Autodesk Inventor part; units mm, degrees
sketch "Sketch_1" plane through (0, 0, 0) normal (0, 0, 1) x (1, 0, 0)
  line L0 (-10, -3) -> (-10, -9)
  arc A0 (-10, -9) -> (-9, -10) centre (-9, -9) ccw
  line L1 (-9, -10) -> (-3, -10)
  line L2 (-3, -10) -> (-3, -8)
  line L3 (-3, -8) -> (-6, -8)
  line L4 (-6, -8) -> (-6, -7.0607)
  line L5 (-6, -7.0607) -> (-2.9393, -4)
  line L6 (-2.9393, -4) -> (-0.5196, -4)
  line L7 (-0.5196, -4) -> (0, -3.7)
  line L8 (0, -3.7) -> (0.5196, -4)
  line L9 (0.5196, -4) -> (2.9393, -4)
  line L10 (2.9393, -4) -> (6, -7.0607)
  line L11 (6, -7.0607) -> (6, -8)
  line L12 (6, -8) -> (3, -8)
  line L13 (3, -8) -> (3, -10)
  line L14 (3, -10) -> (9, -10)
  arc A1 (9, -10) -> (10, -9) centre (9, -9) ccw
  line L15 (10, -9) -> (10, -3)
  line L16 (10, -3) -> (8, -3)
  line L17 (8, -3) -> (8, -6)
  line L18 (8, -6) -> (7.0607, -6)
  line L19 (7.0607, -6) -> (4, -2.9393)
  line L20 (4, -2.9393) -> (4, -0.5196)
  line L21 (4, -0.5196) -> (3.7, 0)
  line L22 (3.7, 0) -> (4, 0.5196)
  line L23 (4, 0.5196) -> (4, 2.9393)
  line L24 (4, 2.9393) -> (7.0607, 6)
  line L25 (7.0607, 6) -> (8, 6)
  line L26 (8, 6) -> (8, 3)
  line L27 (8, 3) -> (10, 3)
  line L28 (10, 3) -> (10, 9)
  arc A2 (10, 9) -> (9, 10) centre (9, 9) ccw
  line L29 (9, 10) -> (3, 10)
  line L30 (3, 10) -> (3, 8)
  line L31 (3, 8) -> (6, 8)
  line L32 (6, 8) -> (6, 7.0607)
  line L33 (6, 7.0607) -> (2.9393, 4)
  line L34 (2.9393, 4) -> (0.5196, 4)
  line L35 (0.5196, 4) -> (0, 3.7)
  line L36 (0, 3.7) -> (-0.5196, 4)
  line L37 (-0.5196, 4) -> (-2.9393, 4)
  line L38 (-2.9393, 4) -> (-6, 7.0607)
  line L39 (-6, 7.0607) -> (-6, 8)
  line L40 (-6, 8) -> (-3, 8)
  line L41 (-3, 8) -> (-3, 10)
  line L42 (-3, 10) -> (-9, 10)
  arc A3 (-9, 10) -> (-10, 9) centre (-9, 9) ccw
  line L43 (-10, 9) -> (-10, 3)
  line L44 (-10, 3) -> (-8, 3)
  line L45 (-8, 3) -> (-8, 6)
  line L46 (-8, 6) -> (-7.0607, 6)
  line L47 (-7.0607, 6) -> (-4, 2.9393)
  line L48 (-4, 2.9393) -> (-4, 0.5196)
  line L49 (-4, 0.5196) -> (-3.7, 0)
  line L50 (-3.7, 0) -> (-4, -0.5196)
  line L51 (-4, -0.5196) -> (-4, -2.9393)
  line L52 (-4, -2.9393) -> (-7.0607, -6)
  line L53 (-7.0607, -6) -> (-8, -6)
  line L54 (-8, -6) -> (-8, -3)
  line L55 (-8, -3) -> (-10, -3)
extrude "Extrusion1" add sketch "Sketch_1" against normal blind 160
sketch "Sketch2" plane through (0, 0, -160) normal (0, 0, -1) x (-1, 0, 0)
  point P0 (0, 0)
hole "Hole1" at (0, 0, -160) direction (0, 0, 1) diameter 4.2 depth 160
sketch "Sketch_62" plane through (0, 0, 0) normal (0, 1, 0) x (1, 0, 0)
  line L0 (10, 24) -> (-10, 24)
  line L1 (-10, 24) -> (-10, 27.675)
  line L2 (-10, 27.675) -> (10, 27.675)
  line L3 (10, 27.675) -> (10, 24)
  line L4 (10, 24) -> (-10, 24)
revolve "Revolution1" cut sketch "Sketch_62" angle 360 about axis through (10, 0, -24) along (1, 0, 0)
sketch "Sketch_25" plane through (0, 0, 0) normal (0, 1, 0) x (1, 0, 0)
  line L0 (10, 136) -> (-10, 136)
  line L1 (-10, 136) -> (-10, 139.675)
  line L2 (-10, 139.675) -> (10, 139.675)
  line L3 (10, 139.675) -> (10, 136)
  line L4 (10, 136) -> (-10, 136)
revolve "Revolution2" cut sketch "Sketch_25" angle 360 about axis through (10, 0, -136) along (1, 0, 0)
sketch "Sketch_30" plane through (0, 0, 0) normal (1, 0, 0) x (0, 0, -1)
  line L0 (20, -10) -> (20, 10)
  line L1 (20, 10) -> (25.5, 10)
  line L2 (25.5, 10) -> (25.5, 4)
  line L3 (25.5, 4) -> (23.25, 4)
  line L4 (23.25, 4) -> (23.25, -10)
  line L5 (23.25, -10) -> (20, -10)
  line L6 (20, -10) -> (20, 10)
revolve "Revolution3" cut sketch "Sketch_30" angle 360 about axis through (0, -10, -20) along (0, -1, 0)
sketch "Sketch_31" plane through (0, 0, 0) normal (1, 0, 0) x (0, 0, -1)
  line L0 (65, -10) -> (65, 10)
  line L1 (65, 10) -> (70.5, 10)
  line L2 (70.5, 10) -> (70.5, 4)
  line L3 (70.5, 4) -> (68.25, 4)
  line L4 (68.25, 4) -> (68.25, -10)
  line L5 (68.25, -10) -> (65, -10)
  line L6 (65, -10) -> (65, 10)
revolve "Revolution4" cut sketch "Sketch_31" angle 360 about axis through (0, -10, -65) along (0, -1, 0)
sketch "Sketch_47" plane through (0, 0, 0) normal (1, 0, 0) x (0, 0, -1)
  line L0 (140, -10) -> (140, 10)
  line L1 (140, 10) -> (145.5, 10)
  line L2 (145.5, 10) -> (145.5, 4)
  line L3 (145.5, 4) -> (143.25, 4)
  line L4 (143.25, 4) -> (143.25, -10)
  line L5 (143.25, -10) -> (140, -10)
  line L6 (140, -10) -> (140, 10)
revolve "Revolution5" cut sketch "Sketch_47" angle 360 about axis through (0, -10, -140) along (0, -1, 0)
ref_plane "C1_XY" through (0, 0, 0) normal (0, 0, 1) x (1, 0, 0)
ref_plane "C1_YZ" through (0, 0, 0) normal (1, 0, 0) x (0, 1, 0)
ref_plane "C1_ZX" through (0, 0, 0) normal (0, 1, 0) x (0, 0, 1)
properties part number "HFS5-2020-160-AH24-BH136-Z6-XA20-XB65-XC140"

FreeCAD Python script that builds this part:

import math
import FreeCAD as App
import Part
import Sketcher
from FreeCAD import Vector
Q = App.Units.Quantity

doc = App.newDocument("Part")
body = doc.addObject("PartDesign::Body", "Body")

sketch1 = body.newObject("Sketcher::SketchObject", "Sketch")
sketch1.AttachmentSupport = (doc.getObject("XY_Plane"), [""])
sketch1.MapMode = "FlatFace"
sketch1.addGeometry(Part.LineSegment(Vector(-8, -3, 0), Vector(-10, -3, 0)), False)
sketch1.addGeometry(Part.LineSegment(Vector(-10, -3, 0), Vector(-10, -9, 0)), False)
sketch1.addGeometry(Part.ArcOfCircle(Part.Circle(Vector(-9, -9, 0), Vector(0, 0, 1), 1), math.radians(180), math.radians(270)), False)
sketch1.addGeometry(Part.LineSegment(Vector(-9, -10, 0), Vector(-3, -10, 0)), False)
sketch1.addGeometry(Part.LineSegment(Vector(-3, -10, 0), Vector(-3, -8, 0)), False)
sketch1.addGeometry(Part.LineSegment(Vector(-3, -8, 0), Vector(-6, -8, 0)), False)
sketch1.addGeometry(Part.LineSegment(Vector(-6, -8, 0), Vector(-6, -7.1, 0)), False)
sketch1.addGeometry(Part.LineSegment(Vector(-6, -7.1, 0), Vector(-2.9, -4, 0)), False)
sketch1.addGeometry(Part.LineSegment(Vector(-2.9, -4, 0), Vector(-0.5, -4, 0)), False)
sketch1.addGeometry(Part.LineSegment(Vector(-0.5, -4, 0), Vector(0, -3.7, 0)), False)
sketch1.addGeometry(Part.LineSegment(Vector(0, -3.7, 0), Vector(0.5, -4, 0)), False)
sketch1.addGeometry(Part.LineSegment(Vector(0.5, -4, 0), Vector(2.9, -4, 0)), False)
sketch1.addGeometry(Part.LineSegment(Vector(2.9, -4, 0), Vector(6, -7.1, 0)), False)
sketch1.addGeometry(Part.LineSegment(Vector(6, -7.1, 0), Vector(6, -8, 0)), False)
sketch1.addGeometry(Part.LineSegment(Vector(6, -8, 0), Vector(3, -8, 0)), False)
sketch1.addGeometry(Part.LineSegment(Vector(3, -8, 0), Vector(3, -10, 0)), False)
sketch1.addGeometry(Part.LineSegment(Vector(3, -10, 0), Vector(9, -10, 0)), False)
sketch1.addGeometry(Part.ArcOfCircle(Part.Circle(Vector(9, -9, 0), Vector(0, 0, 1), 1), math.radians(-90), math.radians(0)), False)
sketch1.addGeometry(Part.LineSegment(Vector(10, -9, 0), Vector(10, -3, 0)), False)
sketch1.addGeometry(Part.LineSegment(Vector(10, -3, 0), Vector(8, -3, 0)), False)
sketch1.addGeometry(Part.LineSegment(Vector(8, -3, 0), Vector(8, -6, 0)), False)
sketch1.addGeometry(Part.LineSegment(Vector(8, -6, 0), Vector(7.1, -6, 0)), False)
sketch1.addGeometry(Part.LineSegment(Vector(7.1, -6, 0), Vector(4, -2.9, 0)), False)
sketch1.addGeometry(Part.LineSegment(Vector(4, -2.9, 0), Vector(4, -0.5, 0)), False)
sketch1.addGeometry(Part.LineSegment(Vector(4, -0.5, 0), Vector(3.7, 0, 0)), False)
sketch1.addGeometry(Part.LineSegment(Vector(3.7, 0, 0), Vector(4, 0.5, 0)), False)
sketch1.addGeometry(Part.LineSegment(Vector(4, 0.5, 0), Vector(4, 2.9, 0)), False)
sketch1.addGeometry(Part.LineSegment(Vector(4, 2.9, 0), Vector(7.1, 6, 0)), False)
sketch1.addGeometry(Part.LineSegment(Vector(7.1, 6, 0), Vector(8, 6, 0)), False)
sketch1.addGeometry(Part.LineSegment(Vector(8, 6, 0), Vector(8, 3, 0)), False)
sketch1.addGeometry(Part.LineSegment(Vector(8, 3, 0), Vector(10, 3, 0)), False)
sketch1.addGeometry(Part.LineSegment(Vector(10, 3, 0), Vector(10, 9, 0)), False)
sketch1.addGeometry(Part.ArcOfCircle(Part.Circle(Vector(9, 9, 0), Vector(0, 0, 1), 1), math.radians(0), math.radians(90)), False)
sketch1.addGeometry(Part.LineSegment(Vector(9, 10, 0), Vector(3, 10, 0)), False)
sketch1.addGeometry(Part.LineSegment(Vector(3, 10, 0), Vector(3, 8, 0)), False)
sketch1.addGeometry(Part.LineSegment(Vector(3, 8, 0), Vector(6, 8, 0)), False)
sketch1.addGeometry(Part.LineSegment(Vector(6, 8, 0), Vector(6, 7.1, 0)), False)
sketch1.addGeometry(Part.LineSegment(Vector(6, 7.1, 0), Vector(2.9, 4, 0)), False)
sketch1.addGeometry(Part.LineSegment(Vector(2.9, 4, 0), Vector(0.5, 4, 0)), False)
sketch1.addGeometry(Part.LineSegment(Vector(0.5, 4, 0), Vector(0, 3.7, 0)), False)
sketch1.addGeometry(Part.LineSegment(Vector(0, 3.7, 0), Vector(-0.5, 4, 0)), False)
sketch1.addGeometry(Part.LineSegment(Vector(-0.5, 4, 0), Vector(-2.9, 4, 0)), False)
sketch1.addGeometry(Part.LineSegment(Vector(-2.9, 4, 0), Vector(-6, 7.1, 0)), False)
sketch1.addGeometry(Part.LineSegment(Vector(-6, 7.1, 0), Vector(-6, 8, 0)), False)
sketch1.addGeometry(Part.LineSegment(Vector(-6, 8, 0), Vector(-3, 8, 0)), False)
sketch1.addGeometry(Part.LineSegment(Vector(-3, 8, 0), Vector(-3, 10, 0)), False)
sketch1.addGeometry(Part.LineSegment(Vector(-3, 10, 0), Vector(-9, 10, 0)), False)
sketch1.addGeometry(Part.ArcOfCircle(Part.Circle(Vector(-9, 9, 0), Vector(0, 0, 1), 1), math.radians(90), math.radians(180)), False)
sketch1.addGeometry(Part.LineSegment(Vector(-10, 9, 0), Vector(-10, 3, 0)), False)
sketch1.addGeometry(Part.LineSegment(Vector(-10, 3, 0), Vector(-8, 3, 0)), False)
sketch1.addGeometry(Part.LineSegment(Vector(-8, 3, 0), Vector(-8, 6, 0)), False)
sketch1.addGeometry(Part.LineSegment(Vector(-8, 6, 0), Vector(-7.1, 6, 0)), False)
sketch1.addGeometry(Part.LineSegment(Vector(-7.1, 6, 0), Vector(-4, 2.9, 0)), False)
sketch1.addGeometry(Part.LineSegment(Vector(-4, 2.9, 0), Vector(-4, 0.5, 0)), False)
sketch1.addGeometry(Part.LineSegment(Vector(-4, 0.5, 0), Vector(-3.7, 0, 0)), False)
sketch1.addGeometry(Part.LineSegment(Vector(-3.7, 0, 0), Vector(-4, -0.5, 0)), False)
sketch1.addGeometry(Part.LineSegment(Vector(-4, -0.5, 0), Vector(-4, -2.9, 0)), False)
sketch1.addGeometry(Part.LineSegment(Vector(-4, -2.9, 0), Vector(-7.1, -6, 0)), False)
sketch1.addGeometry(Part.LineSegment(Vector(-7.1, -6, 0), Vector(-8, -6, 0)), False)
sketch1.addGeometry(Part.LineSegment(Vector(-8, -6, 0), Vector(-8, -3, 0)), False)
sketch1.addConstraint(Sketcher.Constraint("Coincident", 0, 2, 1, 1))
sketch1.addConstraint(Sketcher.Constraint("Tangent", 1, 2, 2, 1))
sketch1.addConstraint(Sketcher.Constraint("Tangent", 2, 2, 3, 1))
sketch1.addConstraint(Sketcher.Constraint("Coincident", 3, 2, 4, 1))
sketch1.addConstraint(Sketcher.Constraint("Coincident", 4, 2, 5, 1))
sketch1.addConstraint(Sketcher.Constraint("Coincident", 5, 2, 6, 1))
sketch1.addConstraint(Sketcher.Constraint("Coincident", 6, 2, 7, 1))
sketch1.addConstraint(Sketcher.Constraint("Coincident", 7, 2, 8, 1))
sketch1.addConstraint(Sketcher.Constraint("Coincident", 8, 2, 9, 1))
sketch1.addConstraint(Sketcher.Constraint("Coincident", 9, 2, 10, 1))
sketch1.addConstraint(Sketcher.Constraint("Coincident", 10, 2, 11, 1))
sketch1.addConstraint(Sketcher.Constraint("Coincident", 11, 2, 12, 1))
sketch1.addConstraint(Sketcher.Constraint("Coincident", 12, 2, 13, 1))
sketch1.addConstraint(Sketcher.Constraint("Coincident", 13, 2, 14, 1))
sketch1.addConstraint(Sketcher.Constraint("Coincident", 14, 2, 15, 1))
sketch1.addConstraint(Sketcher.Constraint("Coincident", 15, 2, 16, 1))
sketch1.addConstraint(Sketcher.Constraint("Tangent", 16, 2, 17, 1))
sketch1.addConstraint(Sketcher.Constraint("Tangent", 17, 2, 18, 1))
sketch1.addConstraint(Sketcher.Constraint("Coincident", 18, 2, 19, 1))
sketch1.addConstraint(Sketcher.Constraint("Coincident", 19, 2, 20, 1))
sketch1.addConstraint(Sketcher.Constraint("Coincident", 20, 2, 21, 1))
sketch1.addConstraint(Sketcher.Constraint("Coincident", 21, 2, 22, 1))
sketch1.addConstraint(Sketcher.Constraint("Coincident", 22, 2, 23, 1))
sketch1.addConstraint(Sketcher.Constraint("Coincident", 23, 2, 24, 1))
sketch1.addConstraint(Sketcher.Constraint("Coincident", 24, 2, 25, 1))
sketch1.addConstraint(Sketcher.Constraint("Coincident", 25, 2, 26, 1))
sketch1.addConstraint(Sketcher.Constraint("Coincident", 26, 2, 27, 1))
sketch1.addConstraint(Sketcher.Constraint("Coincident", 27, 2, 28, 1))
sketch1.addConstraint(Sketcher.Constraint("Coincident", 28, 2, 29, 1))
sketch1.addConstraint(Sketcher.Constraint("Coincident", 29, 2, 30, 1))
sketch1.addConstraint(Sketcher.Constraint("Coincident", 30, 2, 31, 1))
sketch1.addConstraint(Sketcher.Constraint("Tangent", 31, 2, 32, 1))
sketch1.addConstraint(Sketcher.Constraint("Tangent", 32, 2, 33, 1))
sketch1.addConstraint(Sketcher.Constraint("Coincident", 33, 2, 34, 1))
sketch1.addConstraint(Sketcher.Constraint("Coincident", 34, 2, 35, 1))
sketch1.addConstraint(Sketcher.Constraint("Coincident", 35, 2, 36, 1))
sketch1.addConstraint(Sketcher.Constraint("Coincident", 36, 2, 37, 1))
sketch1.addConstraint(Sketcher.Constraint("Coincident", 37, 2, 38, 1))
sketch1.addConstraint(Sketcher.Constraint("Coincident", 38, 2, 39, 1))
sketch1.addConstraint(Sketcher.Constraint("Coincident", 39, 2, 40, 1))
sketch1.addConstraint(Sketcher.Constraint("Coincident", 40, 2, 41, 1))
sketch1.addConstraint(Sketcher.Constraint("Coincident", 41, 2, 42, 1))
sketch1.addConstraint(Sketcher.Constraint("Coincident", 42, 2, 43, 1))
sketch1.addConstraint(Sketcher.Constraint("Coincident", 43, 2, 44, 1))
sketch1.addConstraint(Sketcher.Constraint("Coincident", 44, 2, 45, 1))
sketch1.addConstraint(Sketcher.Constraint("Coincident", 45, 2, 46, 1))
sketch1.addConstraint(Sketcher.Constraint("Tangent", 46, 2, 47, 1))
sketch1.addConstraint(Sketcher.Constraint("Tangent", 47, 2, 48, 1))
sketch1.addConstraint(Sketcher.Constraint("Coincident", 48, 2, 49, 1))
sketch1.addConstraint(Sketcher.Constraint("Coincident", 49, 2, 50, 1))
sketch1.addConstraint(Sketcher.Constraint("Coincident", 50, 2, 51, 1))
sketch1.addConstraint(Sketcher.Constraint("Coincident", 51, 2, 52, 1))
sketch1.addConstraint(Sketcher.Constraint("Coincident", 52, 2, 53, 1))
sketch1.addConstraint(Sketcher.Constraint("Coincident", 53, 2, 54, 1))
sketch1.addConstraint(Sketcher.Constraint("Coincident", 54, 2, 55, 1))
sketch1.addConstraint(Sketcher.Constraint("Coincident", 55, 2, 56, 1))
sketch1.addConstraint(Sketcher.Constraint("Coincident", 56, 2, 57, 1))
sketch1.addConstraint(Sketcher.Constraint("Coincident", 57, 2, 58, 1))
sketch1.addConstraint(Sketcher.Constraint("Coincident", 58, 2, 59, 1))
sketch1.addConstraint(Sketcher.Constraint("Coincident", 59, 2, 0, 1))
sketch1.addConstraint(Sketcher.Constraint("Horizontal", 0))
sketch1.addConstraint(Sketcher.Constraint("Vertical", 1))
sketch1.addConstraint(Sketcher.Constraint("Horizontal", 3))
sketch1.addConstraint(Sketcher.Constraint("Vertical", 4))
sketch1.addConstraint(Sketcher.Constraint("Horizontal", 5))
sketch1.addConstraint(Sketcher.Constraint("Vertical", 6))
sketch1.addConstraint(Sketcher.Constraint("Horizontal", 8))
sketch1.addConstraint(Sketcher.Constraint("Horizontal", 11))
sketch1.addConstraint(Sketcher.Constraint("Vertical", 13))
sketch1.addConstraint(Sketcher.Constraint("Horizontal", 14))
sketch1.addConstraint(Sketcher.Constraint("Vertical", 15))
sketch1.addConstraint(Sketcher.Constraint("Horizontal", 16))
sketch1.addConstraint(Sketcher.Constraint("Vertical", 18))
sketch1.addConstraint(Sketcher.Constraint("Horizontal", 19))
sketch1.addConstraint(Sketcher.Constraint("Vertical", 20))
sketch1.addConstraint(Sketcher.Constraint("Horizontal", 21))
sketch1.addConstraint(Sketcher.Constraint("Vertical", 23))
sketch1.addConstraint(Sketcher.Constraint("Vertical", 26))
sketch1.addConstraint(Sketcher.Constraint("Horizontal", 28))
sketch1.addConstraint(Sketcher.Constraint("Vertical", 29))
sketch1.addConstraint(Sketcher.Constraint("Horizontal", 30))
sketch1.addConstraint(Sketcher.Constraint("Vertical", 31))
sketch1.addConstraint(Sketcher.Constraint("Horizontal", 33))
sketch1.addConstraint(Sketcher.Constraint("Vertical", 34))
sketch1.addConstraint(Sketcher.Constraint("Horizontal", 35))
sketch1.addConstraint(Sketcher.Constraint("Vertical", 36))
sketch1.addConstraint(Sketcher.Constraint("Horizontal", 38))
sketch1.addConstraint(Sketcher.Constraint("Horizontal", 41))
sketch1.addConstraint(Sketcher.Constraint("Vertical", 43))
sketch1.addConstraint(Sketcher.Constraint("Horizontal", 44))
sketch1.addConstraint(Sketcher.Constraint("Vertical", 45))
sketch1.addConstraint(Sketcher.Constraint("Horizontal", 46))
sketch1.addConstraint(Sketcher.Constraint("Vertical", 48))
sketch1.addConstraint(Sketcher.Constraint("Horizontal", 49))
sketch1.addConstraint(Sketcher.Constraint("Vertical", 50))
sketch1.addConstraint(Sketcher.Constraint("Horizontal", 51))
sketch1.addConstraint(Sketcher.Constraint("Vertical", 53))
sketch1.addConstraint(Sketcher.Constraint("Vertical", 56))
sketch1.addConstraint(Sketcher.Constraint("Horizontal", 58))
sketch1.addConstraint(Sketcher.Constraint("Vertical", 59))
sketch1.addConstraint(Sketcher.Constraint("Equal", 2, 17))
sketch1.addConstraint(Sketcher.Constraint("Equal", 17, 32))
sketch1.addConstraint(Sketcher.Constraint("Equal", 32, 47))
sketch1.addConstraint(Sketcher.Constraint("Symmetric", 2, 3, 32, 3, -1, 1))
sketch1.addConstraint(Sketcher.Constraint("Symmetric", 17, 3, 47, 3, -1, 1))
sketch1.addConstraint(Sketcher.Constraint("Symmetric", 4, 2, 34, 2, -1, 1))
sketch1.addConstraint(Sketcher.Constraint("Symmetric", 6, 2, 36, 2, -1, 1))
sketch1.addConstraint(Sketcher.Constraint("Symmetric", 7, 2, 37, 2, -1, 1))
sketch1.addConstraint(Sketcher.Constraint("Symmetric", 9, 2, 39, 2, -1, 1))
sketch1.addConstraint(Sketcher.Constraint("Symmetric", 10, 2, 40, 2, -1, 1))
sketch1.addConstraint(Sketcher.Constraint("Symmetric", 12, 2, 42, 2, -1, 1))
sketch1.addConstraint(Sketcher.Constraint("Symmetric", 14, 2, 44, 2, -1, 1))
sketch1.addConstraint(Sketcher.Constraint("Symmetric", 19, 2, 49, 2, -1, 1))
sketch1.addConstraint(Sketcher.Constraint("Symmetric", 21, 2, 51, 2, -1, 1))
sketch1.addConstraint(Sketcher.Constraint("Symmetric", 22, 2, 52, 2, -1, 1))
sketch1.addConstraint(Sketcher.Constraint("Symmetric", 24, 2, 54, 2, -1, 1))
sketch1.addConstraint(Sketcher.Constraint("Symmetric", 25, 2, 55, 2, -1, 1))
sketch1.addConstraint(Sketcher.Constraint("Symmetric", 27, 2, 57, 2, -1, 1))
sketch1.addConstraint(Sketcher.Constraint("Symmetric", 29, 2, 59, 2, -1, 1))
sketch1.addConstraint(Sketcher.Constraint("Symmetric", 2, 3, 17, 3, -2))
sketch1.addConstraint(Sketcher.Constraint("Symmetric", 8, 2, 10, 2, -2))
sketch1.addConstraint(Sketcher.Constraint("Symmetric", 6, 2, 12, 2, -2))
sketch1.addConstraint(Sketcher.Constraint("Symmetric", 4, 2, 14, 2, -2))
sketch1.addConstraint(Sketcher.Constraint("Symmetric", 29, 2, 49, 2, -2))
sketch1.addConstraint(Sketcher.Constraint("Symmetric", 27, 2, 51, 2, -2))
sketch1.addConstraint(Sketcher.Constraint("Symmetric", 26, 2, 52, 2, -2))
sketch1.addConstraint(Sketcher.Constraint("PointOnObject", 9, 2, -2))
sketch1.addConstraint(Sketcher.Constraint("PointOnObject", 24, 2, -1))
sketch1.addConstraint(Sketcher.Constraint("Perpendicular", 7, 12))
sketch1.addConstraint(Sketcher.Constraint("Parallel", 12, 22))
sketch1.addConstraint(Sketcher.Constraint("Perpendicular", 9, 24))
sketch1.addConstraint(Sketcher.Constraint("Perpendicular", 10, 25))
sketch1.addConstraint(Sketcher.Constraint("Perpendicular", 22, 27))
sketch1.addConstraint(Sketcher.Constraint("Perpendicular", 24, 39))
sketch1.addConstraint(Sketcher.Constraint("Perpendicular", 37, 42))
sketch1.addConstraint(Sketcher.Constraint("Perpendicular", 39, 54))
sketch1.addConstraint(Sketcher.Constraint("Perpendicular", 52, 57))
sketch1.addConstraint(Sketcher.Constraint("Equal", 46, 1))
sketch1.addConstraint(Sketcher.Constraint("Equal", 49, 4))
sketch1.addConstraint(Sketcher.Constraint("Equal", 58, 6))
sketch1.addConstraint(Sketcher.Constraint("Equal", 44, 20))
sketch1.addConstraint(Sketcher.Constraint("Equal", 41, 23))
sketch1.addConstraint(Sketcher.Constraint("Equal", 12, 22))
sketch1.addConstraint(Sketcher.Constraint("Equal", 10, 24))
sketch1.addConstraint(Sketcher.Constraint("Radius", 2, 1.0))
sketch1.addConstraint(Sketcher.Constraint("DistanceX", 0, 2, 0, 1, 2.0))
sketch1.addConstraint(Sketcher.Constraint("DistanceX", 3, 1, 3, 2, 6.0))
sketch1.addConstraint(Sketcher.Constraint("DistanceX", 5, 2, 5, 1, 3.0))
sketch1.addConstraint(Sketcher.Constraint("Angle", 9, Q("30.0007 deg")))
sketch1.addConstraint(Sketcher.Constraint("DistanceX", 2, 3, -1, 1, 9.0))
sketch1.addConstraint(Sketcher.Constraint("DistanceY", 7, 2, -1, 1, 4.0))
sketch1.addConstraint(Sketcher.Constraint("Distance", 9, 0.6))
sketch1.addConstraint(Sketcher.Constraint("DistanceX", 8, 1, 8, 2, 2.4197))
pad1 = body.newObject("PartDesign::Pad", "Pad")
pad1.Profile = sketch1
pad1.Length = 160
pad1.Reversed = True

sketch2 = body.newObject("Sketcher::SketchObject", "Sketch001")
sketch2.AttachmentSupport = (doc.getObject("XY_Plane"), [""])
sketch2.MapMode = "FlatFace"
sketch2.AttachmentOffset = App.Placement(Vector(0, 0, -160), App.Rotation())
sketch2.addGeometry(Part.Circle(Vector(0, 0, 0), Vector(0, 0, 1), 2.1), False)
sketch2.addConstraint(Sketcher.Constraint("Coincident", 0, 3, -1, 1))
sketch2.addConstraint(Sketcher.Constraint("Diameter", 0, 4.2))
doc.recompute()
hole = body.newObject("PartDesign::Hole", "Hole")
hole.Profile = sketch2
hole.ThreadType = "None"
hole.Diameter = 4.2
hole.DepthType = "Dimension"
hole.Depth = 160
hole.DrillPoint = "Flat"
hole.Reversed = True

sketch3 = body.newObject("Sketcher::SketchObject", "Sketch002")
sketch3.AttachmentSupport = (doc.getObject("XZ_Plane"), [""])
sketch3.MapMode = "FlatFace"
sketch3.addGeometry(Part.LineSegment(Vector(-10, -24, 0), Vector(10, -24, 0)), False)
sketch3.addGeometry(Part.LineSegment(Vector(10, -24, 0), Vector(10, -27.7, 0)), False)
sketch3.addGeometry(Part.LineSegment(Vector(10, -27.7, 0), Vector(-10, -27.7, 0)), False)
sketch3.addGeometry(Part.LineSegment(Vector(-10, -27.7, 0), Vector(-10, -24, 0)), False)
sketch3.addGeometry(Part.LineSegment(Vector(-10, -24, 0), Vector(10, -24, 0)), True)
sketch3.addConstraint(Sketcher.Constraint("Coincident", 0, 2, 1, 1))
sketch3.addConstraint(Sketcher.Constraint("Coincident", 1, 2, 2, 1))
sketch3.addConstraint(Sketcher.Constraint("Coincident", 2, 2, 3, 1))
sketch3.addConstraint(Sketcher.Constraint("Coincident", 3, 2, 0, 1))
sketch3.addConstraint(Sketcher.Constraint("Horizontal", 0))
sketch3.addConstraint(Sketcher.Constraint("Vertical", 1))
sketch3.addConstraint(Sketcher.Constraint("Horizontal", 2))
sketch3.addConstraint(Sketcher.Constraint("Vertical", 3))
sketch3.addConstraint(Sketcher.Constraint("Horizontal", 4))
sketch3.addConstraint(Sketcher.Constraint("Coincident", 4, 1, 3, 2))
sketch3.addConstraint(Sketcher.Constraint("Vertical", 1, 2, 4, 2))
sketch3.addConstraint(Sketcher.Constraint("DistanceX", 0, 1, 0, 2, 20.0))
sketch3.addConstraint(Sketcher.Constraint("DistanceX", -1, 1, 0, 2, 10.0))
sketch3.addConstraint(Sketcher.Constraint("DistanceY", 0, 2, -1, 1, 24.0))
sketch3.addConstraint(Sketcher.Constraint("DistanceY", 1, 2, 1, 1, 3.675))
groove = body.newObject("PartDesign::Groove", "Groove")
groove.Profile = sketch3
groove.ReferenceAxis = (sketch3, ["Axis0"])
groove.Angle = 360

sketch4 = body.newObject("Sketcher::SketchObject", "Sketch003")
sketch4.AttachmentSupport = (doc.getObject("XZ_Plane"), [""])
sketch4.MapMode = "FlatFace"
sketch4.addGeometry(Part.LineSegment(Vector(-10, -136, 0), Vector(10, -136, 0)), False)
sketch4.addGeometry(Part.LineSegment(Vector(10, -136, 0), Vector(10, -139.7, 0)), False)
sketch4.addGeometry(Part.LineSegment(Vector(10, -139.7, 0), Vector(-10, -139.7, 0)), False)
sketch4.addGeometry(Part.LineSegment(Vector(-10, -139.7, 0), Vector(-10, -136, 0)), False)
sketch4.addGeometry(Part.LineSegment(Vector(-10, -136, 0), Vector(10, -136, 0)), True)
sketch4.addConstraint(Sketcher.Constraint("Coincident", 0, 2, 1, 1))
sketch4.addConstraint(Sketcher.Constraint("Coincident", 1, 2, 2, 1))
sketch4.addConstraint(Sketcher.Constraint("Coincident", 2, 2, 3, 1))
sketch4.addConstraint(Sketcher.Constraint("Coincident", 3, 2, 0, 1))
sketch4.addConstraint(Sketcher.Constraint("Horizontal", 0))
sketch4.addConstraint(Sketcher.Constraint("Vertical", 1))
sketch4.addConstraint(Sketcher.Constraint("Horizontal", 2))
sketch4.addConstraint(Sketcher.Constraint("Vertical", 3))
sketch4.addConstraint(Sketcher.Constraint("Horizontal", 4))
sketch4.addConstraint(Sketcher.Constraint("Coincident", 4, 1, 3, 2))
sketch4.addConstraint(Sketcher.Constraint("Vertical", 1, 2, 4, 2))
sketch4.addConstraint(Sketcher.Constraint("DistanceX", 0, 1, 0, 2, 20.0))
sketch4.addConstraint(Sketcher.Constraint("DistanceX", -1, 1, 0, 2, 10.0))
sketch4.addConstraint(Sketcher.Constraint("DistanceY", 0, 2, -1, 1, 136.0))
sketch4.addConstraint(Sketcher.Constraint("DistanceY", 1, 2, 1, 1, 3.675))
groove2 = body.newObject("PartDesign::Groove", "Groove001")
groove2.Profile = sketch4
groove2.ReferenceAxis = (sketch4, ["Axis0"])
groove2.Angle = 360

sketch5 = body.newObject("Sketcher::SketchObject", "Sketch004")
sketch5.AttachmentSupport = (doc.getObject("YZ_Plane"), [""])
sketch5.MapMode = "FlatFace"
sketch5.addGeometry(Part.LineSegment(Vector(10, -20, 0), Vector(-10, -20, 0)), False)
sketch5.addGeometry(Part.LineSegment(Vector(-10, -20, 0), Vector(-10, -23.2, 0)), False)
sketch5.addGeometry(Part.LineSegment(Vector(-10, -23.2, 0), Vector(4, -23.2, 0)), False)
sketch5.addGeometry(Part.LineSegment(Vector(4, -23.2, 0), Vector(4, -25.5, 0)), False)
sketch5.addGeometry(Part.LineSegment(Vector(4, -25.5, 0), Vector(10, -25.5, 0)), False)
sketch5.addGeometry(Part.LineSegment(Vector(10, -25.5, 0), Vector(10, -20, 0)), False)
sketch5.addGeometry(Part.LineSegment(Vector(10, -20, 0), Vector(-10, -20, 0)), True)
sketch5.addConstraint(Sketcher.Constraint("Coincident", 0, 2, 1, 1))
sketch5.addConstraint(Sketcher.Constraint("Coincident", 1, 2, 2, 1))
sketch5.addConstraint(Sketcher.Constraint("Coincident", 2, 2, 3, 1))
sketch5.addConstraint(Sketcher.Constraint("Coincident", 3, 2, 4, 1))
sketch5.addConstraint(Sketcher.Constraint("Coincident", 4, 2, 5, 1))
sketch5.addConstraint(Sketcher.Constraint("Coincident", 5, 2, 0, 1))
sketch5.addConstraint(Sketcher.Constraint("Horizontal", 0))
sketch5.addConstraint(Sketcher.Constraint("Vertical", 1))
sketch5.addConstraint(Sketcher.Constraint("Horizontal", 2))
sketch5.addConstraint(Sketcher.Constraint("Vertical", 3))
sketch5.addConstraint(Sketcher.Constraint("Horizontal", 4))
sketch5.addConstraint(Sketcher.Constraint("Vertical", 5))
sketch5.addConstraint(Sketcher.Constraint("Horizontal", 6))
sketch5.addConstraint(Sketcher.Constraint("Coincident", 6, 1, 5, 2))
sketch5.addConstraint(Sketcher.Constraint("Vertical", 1, 2, 6, 2))
sketch5.addConstraint(Sketcher.Constraint("DistanceX", 0, 2, 0, 1, 20.0))
sketch5.addConstraint(Sketcher.Constraint("DistanceX", 2, 1, 2, 2, 14.0))
sketch5.addConstraint(Sketcher.Constraint("DistanceY", 5, 1, 5, 2, 5.5))
sketch5.addConstraint(Sketcher.Constraint("DistanceX", 0, 2, -1, 1, 10.0))
sketch5.addConstraint(Sketcher.Constraint("DistanceY", 0, 2, -1, 1, 20.0))
sketch5.addConstraint(Sketcher.Constraint("DistanceY", 1, 2, 1, 1, 3.25))
groove3 = body.newObject("PartDesign::Groove", "Groove002")
groove3.Profile = sketch5
groove3.ReferenceAxis = (sketch5, ["Axis0"])
groove3.Angle = 360

sketch6 = body.newObject("Sketcher::SketchObject", "Sketch005")
sketch6.AttachmentSupport = (doc.getObject("YZ_Plane"), [""])
sketch6.MapMode = "FlatFace"
sketch6.addGeometry(Part.LineSegment(Vector(10, -65, 0), Vector(-10, -65, 0)), False)
sketch6.addGeometry(Part.LineSegment(Vector(-10, -65, 0), Vector(-10, -68.2, 0)), False)
sketch6.addGeometry(Part.LineSegment(Vector(-10, -68.2, 0), Vector(4, -68.2, 0)), False)
sketch6.addGeometry(Part.LineSegment(Vector(4, -68.2, 0), Vector(4, -70.5, 0)), False)
sketch6.addGeometry(Part.LineSegment(Vector(4, -70.5, 0), Vector(10, -70.5, 0)), False)
sketch6.addGeometry(Part.LineSegment(Vector(10, -70.5, 0), Vector(10, -65, 0)), False)
sketch6.addGeometry(Part.LineSegment(Vector(10, -65, 0), Vector(-10, -65, 0)), True)
sketch6.addConstraint(Sketcher.Constraint("Coincident", 0, 2, 1, 1))
sketch6.addConstraint(Sketcher.Constraint("Coincident", 1, 2, 2, 1))
sketch6.addConstraint(Sketcher.Constraint("Coincident", 2, 2, 3, 1))
sketch6.addConstraint(Sketcher.Constraint("Coincident", 3, 2, 4, 1))
sketch6.addConstraint(Sketcher.Constraint("Coincident", 4, 2, 5, 1))
sketch6.addConstraint(Sketcher.Constraint("Coincident", 5, 2, 0, 1))
sketch6.addConstraint(Sketcher.Constraint("Horizontal", 0))
sketch6.addConstraint(Sketcher.Constraint("Vertical", 1))
sketch6.addConstraint(Sketcher.Constraint("Horizontal", 2))
sketch6.addConstraint(Sketcher.Constraint("Vertical", 3))
sketch6.addConstraint(Sketcher.Constraint("Horizontal", 4))
sketch6.addConstraint(Sketcher.Constraint("Vertical", 5))
sketch6.addConstraint(Sketcher.Constraint("Horizontal", 6))
sketch6.addConstraint(Sketcher.Constraint("Coincident", 6, 1, 5, 2))
sketch6.addConstraint(Sketcher.Constraint("Vertical", 1, 2, 6, 2))
sketch6.addConstraint(Sketcher.Constraint("DistanceX", 0, 2, 0, 1, 20.0))
sketch6.addConstraint(Sketcher.Constraint("DistanceX", 2, 1, 2, 2, 14.0))
sketch6.addConstraint(Sketcher.Constraint("DistanceY", 5, 1, 5, 2, 5.5))
sketch6.addConstraint(Sketcher.Constraint("DistanceX", 0, 2, -1, 1, 10.0))
sketch6.addConstraint(Sketcher.Constraint("DistanceY", 0, 2, -1, 1, 65.0))
sketch6.addConstraint(Sketcher.Constraint("DistanceY", 1, 2, 1, 1, 3.25))
groove4 = body.newObject("PartDesign::Groove", "Groove003")
groove4.Profile = sketch6
groove4.ReferenceAxis = (sketch6, ["Axis0"])
groove4.Angle = 360

sketch7 = body.newObject("Sketcher::SketchObject", "Sketch006")
sketch7.AttachmentSupport = (doc.getObject("YZ_Plane"), [""])
sketch7.MapMode = "FlatFace"
sketch7.addGeometry(Part.LineSegment(Vector(10, -140, 0), Vector(-10, -140, 0)), False)
sketch7.addGeometry(Part.LineSegment(Vector(-10, -140, 0), Vector(-10, -143.2, 0)), False)
sketch7.addGeometry(Part.LineSegment(Vector(-10, -143.2, 0), Vector(4, -143.2, 0)), False)
sketch7.addGeometry(Part.LineSegment(Vector(4, -143.2, 0), Vector(4, -145.5, 0)), False)
sketch7.addGeometry(Part.LineSegment(Vector(4, -145.5, 0), Vector(10, -145.5, 0)), False)
sketch7.addGeometry(Part.LineSegment(Vector(10, -145.5, 0), Vector(10, -140, 0)), False)
sketch7.addGeometry(Part.LineSegment(Vector(10, -140, 0), Vector(-10, -140, 0)), True)
sketch7.addConstraint(Sketcher.Constraint("Coincident", 0, 2, 1, 1))
sketch7.addConstraint(Sketcher.Constraint("Coincident", 1, 2, 2, 1))
sketch7.addConstraint(Sketcher.Constraint("Coincident", 2, 2, 3, 1))
sketch7.addConstraint(Sketcher.Constraint("Coincident", 3, 2, 4, 1))
sketch7.addConstraint(Sketcher.Constraint("Coincident", 4, 2, 5, 1))
sketch7.addConstraint(Sketcher.Constraint("Coincident", 5, 2, 0, 1))
sketch7.addConstraint(Sketcher.Constraint("Horizontal", 0))
sketch7.addConstraint(Sketcher.Constraint("Vertical", 1))
sketch7.addConstraint(Sketcher.Constraint("Horizontal", 2))
sketch7.addConstraint(Sketcher.Constraint("Vertical", 3))
sketch7.addConstraint(Sketcher.Constraint("Horizontal", 4))
sketch7.addConstraint(Sketcher.Constraint("Vertical", 5))
sketch7.addConstraint(Sketcher.Constraint("Horizontal", 6))
sketch7.addConstraint(Sketcher.Constraint("Coincident", 6, 1, 5, 2))
sketch7.addConstraint(Sketcher.Constraint("Vertical", 1, 2, 6, 2))
sketch7.addConstraint(Sketcher.Constraint("DistanceX", 0, 2, 0, 1, 20.0))
sketch7.addConstraint(Sketcher.Constraint("DistanceX", 2, 1, 2, 2, 14.0))
sketch7.addConstraint(Sketcher.Constraint("DistanceY", 5, 1, 5, 2, 5.5))
sketch7.addConstraint(Sketcher.Constraint("DistanceX", 0, 2, -1, 1, 10.0))
sketch7.addConstraint(Sketcher.Constraint("DistanceY", 0, 2, -1, 1, 140.0))
sketch7.addConstraint(Sketcher.Constraint("DistanceY", 1, 2, 1, 1, 3.25))
groove5 = body.newObject("PartDesign::Groove", "Groove004")
groove5.Profile = sketch7
groove5.ReferenceAxis = (sketch7, ["Axis0"])
groove5.Angle = 360

doc.recompute()
